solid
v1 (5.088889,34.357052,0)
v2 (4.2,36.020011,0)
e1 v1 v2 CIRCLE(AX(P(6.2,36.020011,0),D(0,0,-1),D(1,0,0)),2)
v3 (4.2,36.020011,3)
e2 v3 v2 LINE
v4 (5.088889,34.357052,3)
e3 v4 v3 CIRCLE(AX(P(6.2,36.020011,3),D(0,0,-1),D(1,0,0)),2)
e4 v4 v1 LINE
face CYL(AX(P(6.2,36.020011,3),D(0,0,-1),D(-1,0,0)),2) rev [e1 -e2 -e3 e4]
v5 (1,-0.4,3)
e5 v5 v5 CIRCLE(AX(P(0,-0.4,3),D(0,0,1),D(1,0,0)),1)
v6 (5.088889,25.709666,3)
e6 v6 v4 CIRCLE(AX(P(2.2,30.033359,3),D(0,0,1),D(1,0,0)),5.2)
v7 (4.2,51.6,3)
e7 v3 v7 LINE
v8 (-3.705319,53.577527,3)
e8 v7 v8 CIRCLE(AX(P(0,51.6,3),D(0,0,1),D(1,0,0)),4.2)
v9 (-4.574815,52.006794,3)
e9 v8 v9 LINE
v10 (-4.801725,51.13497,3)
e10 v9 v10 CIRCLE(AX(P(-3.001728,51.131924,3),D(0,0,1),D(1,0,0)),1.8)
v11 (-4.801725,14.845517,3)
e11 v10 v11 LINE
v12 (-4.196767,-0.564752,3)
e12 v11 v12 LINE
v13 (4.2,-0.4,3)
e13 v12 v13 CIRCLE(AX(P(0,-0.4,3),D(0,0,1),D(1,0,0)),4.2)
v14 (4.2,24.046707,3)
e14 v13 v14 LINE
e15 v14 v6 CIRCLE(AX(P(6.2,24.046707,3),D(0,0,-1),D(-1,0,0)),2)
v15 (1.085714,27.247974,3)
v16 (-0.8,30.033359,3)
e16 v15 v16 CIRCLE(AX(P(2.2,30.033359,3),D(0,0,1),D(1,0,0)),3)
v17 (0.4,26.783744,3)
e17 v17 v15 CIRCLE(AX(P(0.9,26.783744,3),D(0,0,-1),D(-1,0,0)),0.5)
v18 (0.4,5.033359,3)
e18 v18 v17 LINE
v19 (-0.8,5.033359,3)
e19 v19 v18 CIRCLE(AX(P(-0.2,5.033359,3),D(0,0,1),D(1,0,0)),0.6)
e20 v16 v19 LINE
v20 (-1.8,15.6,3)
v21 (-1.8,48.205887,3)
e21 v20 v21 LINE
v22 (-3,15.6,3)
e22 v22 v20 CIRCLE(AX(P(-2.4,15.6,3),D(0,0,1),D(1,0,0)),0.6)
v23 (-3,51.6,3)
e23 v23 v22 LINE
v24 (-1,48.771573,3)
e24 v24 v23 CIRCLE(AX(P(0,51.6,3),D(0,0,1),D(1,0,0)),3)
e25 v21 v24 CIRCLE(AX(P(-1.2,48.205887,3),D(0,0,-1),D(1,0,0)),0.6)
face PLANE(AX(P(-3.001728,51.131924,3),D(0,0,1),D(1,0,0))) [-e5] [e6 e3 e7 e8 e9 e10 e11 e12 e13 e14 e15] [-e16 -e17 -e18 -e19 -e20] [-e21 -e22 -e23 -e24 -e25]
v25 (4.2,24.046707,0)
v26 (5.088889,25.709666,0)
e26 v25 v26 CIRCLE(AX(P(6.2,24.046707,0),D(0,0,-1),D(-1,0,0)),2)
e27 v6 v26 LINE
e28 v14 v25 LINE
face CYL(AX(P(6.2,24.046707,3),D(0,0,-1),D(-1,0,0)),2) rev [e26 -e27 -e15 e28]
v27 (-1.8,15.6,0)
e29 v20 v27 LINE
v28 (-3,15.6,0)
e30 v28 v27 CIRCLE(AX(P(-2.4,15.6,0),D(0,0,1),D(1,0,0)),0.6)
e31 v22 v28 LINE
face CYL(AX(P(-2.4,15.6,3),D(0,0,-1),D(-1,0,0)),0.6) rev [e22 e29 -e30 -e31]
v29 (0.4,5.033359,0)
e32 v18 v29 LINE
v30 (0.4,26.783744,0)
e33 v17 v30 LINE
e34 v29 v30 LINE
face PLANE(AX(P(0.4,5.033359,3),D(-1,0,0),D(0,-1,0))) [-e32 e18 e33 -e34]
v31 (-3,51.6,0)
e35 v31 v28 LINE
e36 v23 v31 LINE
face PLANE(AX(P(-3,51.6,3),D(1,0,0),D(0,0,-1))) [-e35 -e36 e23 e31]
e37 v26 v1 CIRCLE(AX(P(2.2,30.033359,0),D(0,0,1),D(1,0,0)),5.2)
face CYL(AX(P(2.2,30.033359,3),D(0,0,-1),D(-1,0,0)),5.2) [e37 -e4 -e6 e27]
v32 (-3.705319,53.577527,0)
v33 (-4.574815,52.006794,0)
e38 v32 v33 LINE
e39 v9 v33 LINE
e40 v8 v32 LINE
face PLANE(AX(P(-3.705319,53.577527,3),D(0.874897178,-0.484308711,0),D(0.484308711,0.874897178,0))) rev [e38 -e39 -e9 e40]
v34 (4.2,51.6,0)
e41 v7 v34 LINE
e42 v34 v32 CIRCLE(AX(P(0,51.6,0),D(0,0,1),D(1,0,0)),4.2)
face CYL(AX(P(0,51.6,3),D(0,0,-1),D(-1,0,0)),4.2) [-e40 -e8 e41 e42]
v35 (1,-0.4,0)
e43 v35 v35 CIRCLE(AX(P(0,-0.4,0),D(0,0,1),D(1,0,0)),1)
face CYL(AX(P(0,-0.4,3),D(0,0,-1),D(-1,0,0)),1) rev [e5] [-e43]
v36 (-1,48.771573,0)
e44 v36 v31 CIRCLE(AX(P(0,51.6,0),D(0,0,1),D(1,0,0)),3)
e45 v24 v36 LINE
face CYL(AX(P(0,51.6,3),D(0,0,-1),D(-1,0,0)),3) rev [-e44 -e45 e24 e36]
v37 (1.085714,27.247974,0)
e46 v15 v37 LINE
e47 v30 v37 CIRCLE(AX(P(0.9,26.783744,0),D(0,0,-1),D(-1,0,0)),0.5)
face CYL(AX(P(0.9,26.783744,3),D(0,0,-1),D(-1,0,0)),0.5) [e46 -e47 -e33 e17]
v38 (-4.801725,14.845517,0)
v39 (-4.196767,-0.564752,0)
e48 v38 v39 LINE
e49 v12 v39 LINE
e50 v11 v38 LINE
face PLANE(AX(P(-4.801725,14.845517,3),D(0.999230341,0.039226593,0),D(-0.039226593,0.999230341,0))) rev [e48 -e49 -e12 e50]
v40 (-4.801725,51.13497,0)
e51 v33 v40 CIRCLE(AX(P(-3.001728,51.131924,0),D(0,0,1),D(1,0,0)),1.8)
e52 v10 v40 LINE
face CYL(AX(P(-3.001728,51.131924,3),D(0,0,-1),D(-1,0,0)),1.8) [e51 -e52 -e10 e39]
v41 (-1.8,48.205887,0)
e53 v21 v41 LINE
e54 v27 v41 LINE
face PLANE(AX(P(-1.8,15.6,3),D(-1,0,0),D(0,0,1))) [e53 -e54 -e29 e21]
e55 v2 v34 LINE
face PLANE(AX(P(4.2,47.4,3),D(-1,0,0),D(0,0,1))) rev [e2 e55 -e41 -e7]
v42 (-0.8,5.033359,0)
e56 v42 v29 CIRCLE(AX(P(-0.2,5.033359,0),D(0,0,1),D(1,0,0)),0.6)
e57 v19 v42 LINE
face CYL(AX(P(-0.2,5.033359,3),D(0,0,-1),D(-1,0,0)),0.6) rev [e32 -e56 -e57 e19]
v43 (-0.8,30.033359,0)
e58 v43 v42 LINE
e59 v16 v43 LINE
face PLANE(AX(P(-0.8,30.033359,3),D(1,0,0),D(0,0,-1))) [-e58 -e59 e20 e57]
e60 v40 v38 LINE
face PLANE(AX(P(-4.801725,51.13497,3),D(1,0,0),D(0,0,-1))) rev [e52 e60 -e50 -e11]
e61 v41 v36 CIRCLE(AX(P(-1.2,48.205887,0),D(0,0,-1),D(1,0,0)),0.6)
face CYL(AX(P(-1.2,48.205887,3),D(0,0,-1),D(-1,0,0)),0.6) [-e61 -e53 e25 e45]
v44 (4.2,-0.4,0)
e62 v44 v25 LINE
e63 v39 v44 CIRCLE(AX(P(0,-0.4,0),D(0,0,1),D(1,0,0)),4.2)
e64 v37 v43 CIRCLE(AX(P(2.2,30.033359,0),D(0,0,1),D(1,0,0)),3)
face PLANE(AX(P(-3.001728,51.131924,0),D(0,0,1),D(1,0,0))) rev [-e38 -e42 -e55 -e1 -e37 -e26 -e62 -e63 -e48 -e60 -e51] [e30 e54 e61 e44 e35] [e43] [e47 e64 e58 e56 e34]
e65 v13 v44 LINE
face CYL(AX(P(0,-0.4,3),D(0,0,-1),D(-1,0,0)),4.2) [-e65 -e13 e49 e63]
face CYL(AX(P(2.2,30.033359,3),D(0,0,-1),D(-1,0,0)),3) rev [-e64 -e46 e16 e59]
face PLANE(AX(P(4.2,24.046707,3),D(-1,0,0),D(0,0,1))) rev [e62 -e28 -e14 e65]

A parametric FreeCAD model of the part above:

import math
import FreeCAD as App
import Part
import Sketcher

doc = App.newDocument("Part")
body = doc.addObject("PartDesign::Body", "Body")

# Sketch on XY plane
sketch1 = doc.addObject("Sketcher::SketchObject", "Sketch")
body.addObject(sketch1)
sketch1.AttachmentSupport = (doc.XY_Plane, [""])
sketch1.MapMode = "FlatFace"
sketch1.addGeometry([
    Part.LineSegment(App.Vector(-4.8, 51.1, 0), App.Vector(-4.8, 14.8, 0)),  # 0
    Part.LineSegment(App.Vector(-4.8, 14.8, 0), App.Vector(-4.2, -0.6, 0)),  # 1
    Part.ArcOfCircle(Part.Circle(App.Vector(0, -0.4, 0), App.Vector(0, 0, 1), 4.2), math.radians(-178), math.radians(0)),  # 2
    Part.LineSegment(App.Vector(4.2, -0.4, 0), App.Vector(4.2, 24, 0)),  # 3
    Part.ArcOfCircle(Part.Circle(App.Vector(6.2, 24, 0), App.Vector(0, 0, 1), 2), math.radians(124), math.radians(180)),  # 4
    Part.ArcOfCircle(Part.Circle(App.Vector(2.2, 30, 0), App.Vector(0, 0, 1), 5.2), math.radians(-56), math.radians(56)),  # 5
    Part.ArcOfCircle(Part.Circle(App.Vector(6.2, 36, 0), App.Vector(0, 0, 1), 2), math.radians(-180), math.radians(-124)),  # 6
    Part.LineSegment(App.Vector(4.2, 36, 0), App.Vector(4.2, 51.6, 0)),  # 7
    Part.ArcOfCircle(Part.Circle(App.Vector(0, 51.6, 0), App.Vector(0, 0, 1), 4.2), math.radians(0), math.radians(152)),  # 8
    Part.LineSegment(App.Vector(-3.7, 53.6, 0), App.Vector(-4.6, 52, 0)),  # 9
    Part.ArcOfCircle(Part.Circle(App.Vector(-3, 51.1, 0), App.Vector(0, 0, 1), 1.8), math.radians(151), math.radians(180)),  # 10
    Part.Circle(App.Vector(0, -0.4, 0), App.Vector(0, 0, 1), 1),  # 11
    Part.LineSegment(App.Vector(-0.8, 5, 0), App.Vector(-0.8, 30, 0)),  # 12
    Part.ArcOfCircle(Part.Circle(App.Vector(2.2, 30, 0), App.Vector(0, 0, 1), 3), math.radians(-112), math.radians(180)),  # 13
    Part.ArcOfCircle(Part.Circle(App.Vector(0.9, 26.8, 0), App.Vector(0, 0, 1), 0.5), math.radians(68), math.radians(180)),  # 14
    Part.LineSegment(App.Vector(0.4, 26.8, 0), App.Vector(0.4, 5, 0)),  # 15
    Part.ArcOfCircle(Part.Circle(App.Vector(-0.2, 5, 0), App.Vector(0, 0, 1), 0.6), math.radians(180), math.radians(360)),  # 16
    Part.LineSegment(App.Vector(-1.8, 48.2, 0), App.Vector(-1.8, 15.6, 0)),  # 17
    Part.ArcOfCircle(Part.Circle(App.Vector(-2.4, 15.6, 0), App.Vector(0, 0, 1), 0.6), math.radians(180), math.radians(360)),  # 18
    Part.LineSegment(App.Vector(-3, 15.6, 0), App.Vector(-3, 51.6, 0)),  # 19
    Part.ArcOfCircle(Part.Circle(App.Vector(0, 51.6, 0), App.Vector(0, 0, 1), 3), math.radians(-109), math.radians(180)),  # 20
    Part.ArcOfCircle(Part.Circle(App.Vector(-1.2, 48.2, 0), App.Vector(0, 0, 1), 0.6), math.radians(71), math.radians(180)),  # 21
], False)
sketch1.addConstraint([
    Sketcher.Constraint("Coincident", 0, 2, 1, 1),
    Sketcher.Constraint("Tangent", 1, 2, 2, 1),
    Sketcher.Constraint("Tangent", 2, 2, 3, 1),
    Sketcher.Constraint("Tangent", 3, 2, 4, 2),
    Sketcher.Constraint("Tangent", 4, 1, 5, 1),
    Sketcher.Constraint("Tangent", 5, 2, 6, 2),
    Sketcher.Constraint("Tangent", 6, 1, 7, 1),
    Sketcher.Constraint("Tangent", 7, 2, 8, 1),
    Sketcher.Constraint("Coincident", 8, 2, 9, 1),
    Sketcher.Constraint("Coincident", 9, 2, 10, 1),
    Sketcher.Constraint("Coincident", 10, 2, 0, 1),
    Sketcher.Constraint("Tangent", 12, 2, 13, 2),
    Sketcher.Constraint("Tangent", 13, 1, 14, 1),
    Sketcher.Constraint("Tangent", 14, 2, 15, 1),
    Sketcher.Constraint("Tangent", 15, 2, 16, 2),
    Sketcher.Constraint("Tangent", 16, 1, 12, 1),
    Sketcher.Constraint("Tangent", 17, 2, 18, 2),
    Sketcher.Constraint("Tangent", 18, 1, 19, 1),
    Sketcher.Constraint("Tangent", 19, 2, 20, 2),
    Sketcher.Constraint("Tangent", 20, 1, 21, 1),
    Sketcher.Constraint("Tangent", 21, 2, 17, 1),
    Sketcher.Constraint("Vertical", 0),
    Sketcher.Constraint("Vertical", 3),
    Sketcher.Constraint("Vertical", 7),
    Sketcher.Constraint("Vertical", 12),
    Sketcher.Constraint("Vertical", 15),
    Sketcher.Constraint("Vertical", 17),
    Sketcher.Constraint("Vertical", 19),
    Sketcher.Constraint("Coincident", 11, 3, 2, 3),
    Sketcher.Constraint("Coincident", 13, 3, 5, 3),
    Sketcher.Constraint("Coincident", 20, 3, 8, 3),
    Sketcher.Constraint("Equal", 4, 6),
    Sketcher.Constraint("Equal", 2, 8),
    Sketcher.Constraint("Equal", 16, 18),
    Sketcher.Constraint("Equal", 13, 20),
    Sketcher.Constraint("Equal", 18, 21),
    Sketcher.Constraint("PointOnObject", 2, 3, -2),
    Sketcher.Constraint("PointOnObject", 8, 3, -2),
    Sketcher.Constraint("Diameter", 11, 2.0),
    Sketcher.Constraint("Radius", 4, 2.0),
    Sketcher.Constraint("Radius", 13, 3.0),
    Sketcher.Constraint("Radius", 2, 4.2),
    Sketcher.Constraint("Radius", 5, 5.2),
    Sketcher.Constraint("Radius", 10, 1.8),
    Sketcher.Constraint("Radius", 14, 0.5),
    Sketcher.Constraint("Radius", 16, 0.6),
    Sketcher.Constraint("DistanceY", 12, 1, 12, 2, 25.0),
    Sketcher.Constraint("DistanceY", 19, 1, 19, 2, 36.0),
    Sketcher.Constraint("DistanceX", 5, 3, 4, 3, 4.0),
    Sketcher.Constraint("DistanceY", 2, 3, 8, 3, 52.0),
    Sketcher.Constraint("DistanceY", 2, 3, -1, 1, 0.4),
    Sketcher.Constraint("DistanceY", 7, 1, 7, 2, 15.579989),
    Sketcher.Constraint("Distance", 1, 15.422138),
    Sketcher.Constraint("DistanceY", 0, 2, 0, 1, 36.289454),
    Sketcher.Constraint("DistanceY", 1, 2, -1, 1, 0.564752),
    Sketcher.Constraint("DistanceX", 8, 2, -1, 1, 3.705319),
    Sketcher.Constraint("DistanceY", 14, 3, 10, 3, 24.34818),
    Sketcher.Constraint("DistanceY", 10, 3, 9, 2, 0.87487),
])
pad1 = doc.addObject("PartDesign::Pad", "Pad")
body.addObject(pad1)
pad1.Profile = sketch1
pad1.Length = 3

doc.recompute()
